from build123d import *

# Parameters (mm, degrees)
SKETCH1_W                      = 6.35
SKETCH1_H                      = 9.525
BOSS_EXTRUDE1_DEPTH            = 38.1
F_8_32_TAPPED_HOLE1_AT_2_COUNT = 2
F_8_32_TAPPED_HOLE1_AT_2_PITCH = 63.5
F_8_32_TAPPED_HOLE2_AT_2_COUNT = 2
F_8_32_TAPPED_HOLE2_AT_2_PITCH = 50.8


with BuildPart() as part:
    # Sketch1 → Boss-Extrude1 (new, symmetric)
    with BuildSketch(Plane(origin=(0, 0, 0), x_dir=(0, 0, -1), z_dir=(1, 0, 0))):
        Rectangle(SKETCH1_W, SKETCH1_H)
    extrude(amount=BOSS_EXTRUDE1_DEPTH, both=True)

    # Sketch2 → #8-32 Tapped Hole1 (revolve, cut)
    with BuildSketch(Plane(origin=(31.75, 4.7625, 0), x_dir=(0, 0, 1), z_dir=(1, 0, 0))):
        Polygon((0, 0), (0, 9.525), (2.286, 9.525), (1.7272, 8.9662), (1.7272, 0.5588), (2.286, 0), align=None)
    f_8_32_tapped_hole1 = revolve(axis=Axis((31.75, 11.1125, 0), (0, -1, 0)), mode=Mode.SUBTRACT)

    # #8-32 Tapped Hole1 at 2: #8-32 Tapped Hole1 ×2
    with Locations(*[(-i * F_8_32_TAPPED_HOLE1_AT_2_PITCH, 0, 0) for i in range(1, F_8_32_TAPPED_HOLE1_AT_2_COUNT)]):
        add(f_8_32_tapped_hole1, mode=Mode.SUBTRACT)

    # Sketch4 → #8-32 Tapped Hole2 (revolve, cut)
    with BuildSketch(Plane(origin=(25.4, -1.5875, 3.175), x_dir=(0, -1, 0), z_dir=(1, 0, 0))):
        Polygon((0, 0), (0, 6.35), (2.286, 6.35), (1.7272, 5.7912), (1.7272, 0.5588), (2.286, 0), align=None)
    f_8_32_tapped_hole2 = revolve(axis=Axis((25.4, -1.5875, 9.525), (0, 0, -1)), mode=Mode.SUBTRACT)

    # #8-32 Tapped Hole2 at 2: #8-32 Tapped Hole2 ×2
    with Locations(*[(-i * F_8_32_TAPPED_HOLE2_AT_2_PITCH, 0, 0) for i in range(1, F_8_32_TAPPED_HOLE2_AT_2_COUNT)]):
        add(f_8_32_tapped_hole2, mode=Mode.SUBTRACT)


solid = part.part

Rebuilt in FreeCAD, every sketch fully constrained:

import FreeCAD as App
import Part
import Sketcher
from FreeCAD import Vector
Q = App.Units.Quantity

doc = App.newDocument("Part")
body = doc.addObject("PartDesign::Body", "Body")

# Sketch on YZ plane
sketch1 = doc.addObject("Sketcher::SketchObject", "Sketch")
body.addObject(sketch1)
sketch1.AttachmentSupport = (doc.YZ_Plane, [""])
sketch1.MapMode = "FlatFace"
sketch1.addGeometry(Part.LineSegment(Vector(5, 3, 0), Vector(-5, 3, 0)), False)
sketch1.addGeometry(Part.LineSegment(Vector(-5, 3, 0), Vector(-5, -3, 0)), False)
sketch1.addGeometry(Part.LineSegment(Vector(-5, -3, 0), Vector(5, -3, 0)), False)
sketch1.addGeometry(Part.LineSegment(Vector(5, -3, 0), Vector(5, 3, 0)), False)
sketch1.addConstraint(Sketcher.Constraint("Coincident", 0, 2, 1, 1))
sketch1.addConstraint(Sketcher.Constraint("Coincident", 1, 2, 2, 1))
sketch1.addConstraint(Sketcher.Constraint("Coincident", 2, 2, 3, 1))
sketch1.addConstraint(Sketcher.Constraint("Coincident", 3, 2, 0, 1))
sketch1.addConstraint(Sketcher.Constraint("Horizontal", 0))
sketch1.addConstraint(Sketcher.Constraint("Vertical", 1))
sketch1.addConstraint(Sketcher.Constraint("Horizontal", 2))
sketch1.addConstraint(Sketcher.Constraint("Vertical", 3))
sketch1.addConstraint(Sketcher.Constraint("Symmetric", 0, 2, 2, 2, -1, 1))
sketch1.addConstraint(Sketcher.Constraint("DistanceY", 1, 2, 1, 1, Q("0.25 in")))
sketch1.addConstraint(Sketcher.Constraint("DistanceX", 0, 2, 0, 1, Q("0.375 in")))
pad1 = doc.addObject("PartDesign::Pad", "Pad")
body.addObject(pad1)
pad1.Profile = sketch1
pad1.Length = Q("3 in")
pad1.Midplane = True

# Sketch on YZ plane
sketch2 = doc.addObject("Sketcher::SketchObject", "Sketch001")
body.addObject(sketch2)
sketch2.AttachmentSupport = (doc.YZ_Plane, [""])
sketch2.MapMode = "FlatFace"
sketch2.AttachmentOffset = App.Placement(Vector(0, 0, 1.25 * 25.4), App.Rotation())
sketch2.addGeometry(Part.LineSegment(Vector(-4.8, 0, 0), Vector(4.8, 0, 0)), False)
sketch2.addGeometry(Part.LineSegment(Vector(4.8, 0, 0), Vector(4.8, 2.3, 0)), False)
sketch2.addGeometry(Part.LineSegment(Vector(4.8, 2.3, 0), Vector(4.2, 1.7, 0)), False)
sketch2.addGeometry(Part.LineSegment(Vector(4.2, 1.7, 0), Vector(-4.2, 1.7, 0)), False)
sketch2.addGeometry(Part.LineSegment(Vector(-4.2, 1.7, 0), Vector(-4.8, 2.3, 0)), False)
sketch2.addGeometry(Part.LineSegment(Vector(-4.8, 2.3, 0), Vector(-4.8, 0, 0)), False)
sketch2.addConstraint(Sketcher.Constraint("Coincident", 0, 2, 1, 1))
sketch2.addConstraint(Sketcher.Constraint("Coincident", 1, 2, 2, 1))
sketch2.addConstraint(Sketcher.Constraint("Coincident", 2, 2, 3, 1))
sketch2.addConstraint(Sketcher.Constraint("Coincident", 3, 2, 4, 1))
sketch2.addConstraint(Sketcher.Constraint("Coincident", 4, 2, 5, 1))
sketch2.addConstraint(Sketcher.Constraint("Coincident", 5, 2, 0, 1))
sketch2.addConstraint(Sketcher.Constraint("Horizontal", 0))
sketch2.addConstraint(Sketcher.Constraint("Vertical", 1))
sketch2.addConstraint(Sketcher.Constraint("Horizontal", 3))
sketch2.addConstraint(Sketcher.Constraint("Vertical", 5))
sketch2.addConstraint(Sketcher.Constraint("Symmetric", 0, 2, 5, 2, -1, 1))
sketch2.addConstraint(Sketcher.Constraint("Perpendicular", 2, 4))
sketch2.addConstraint(Sketcher.Constraint("Horizontal", 1, 2, 4, 2))
sketch2.addConstraint(Sketcher.Constraint("Equal", 2, 4))
sketch2.addConstraint(Sketcher.Constraint("DistanceY", 1, 1, 1, 2, Q("0.09 in")))
sketch2.addConstraint(Sketcher.Constraint("DistanceX", 0, 1, 0, 2, Q("0.375 in")))
sketch2.addConstraint(Sketcher.Constraint("DistanceX", 3, 2, 3, 1, Q("0.331 in")))
groove = doc.addObject("PartDesign::Groove", "Groove")
body.addObject(groove)
groove.Profile = sketch2
groove.ReferenceAxis = (sketch2, ["H_Axis"])
groove.Angle = 360
doc.recompute()

linearpattern = doc.addObject("PartDesign::LinearPattern", "LinearPattern")
body.addObject(linearpattern)
linearpattern.Originals = [groove]
linearpattern.Direction = (doc.X_Axis, [""])
linearpattern.Mode = "offset"
linearpattern.Offset = Q("2.5 in")
linearpattern.Occurrences = 2
linearpattern.Reversed = True
body.Tip = linearpattern

# Sketch on YZ plane
sketch3 = doc.addObject("Sketcher::SketchObject", "Sketch002")
body.addObject(sketch3)
sketch3.AttachmentSupport = (doc.YZ_Plane, [""])
sketch3.MapMode = "FlatFace"
sketch3.AttachmentOffset = App.Placement(Vector(0, 0, 1 * 25.4), App.Rotation())
sketch3.addGeometry(Part.LineSegment(Vector(-1.6, -3.2, 0), Vector(-1.6, 3.2, 0)), False)
sketch3.addGeometry(Part.LineSegment(Vector(-1.6, 3.2, 0), Vector(-3.9, 3.2, 0)), False)
sketch3.addGeometry(Part.LineSegment(Vector(-3.9, 3.2, 0), Vector(-3.3, 2.6, 0)), False)
sketch3.addGeometry(Part.LineSegment(Vector(-3.3, 2.6, 0), Vector(-3.3, -2.6, 0)), False)
sketch3.addGeometry(Part.LineSegment(Vector(-3.3, -2.6, 0), Vector(-3.9, -3.2, 0)), False)
sketch3.addGeometry(Part.LineSegment(Vector(-3.9, -3.2, 0), Vector(-1.6, -3.2, 0)), False)
sketch3.addGeometry(Part.LineSegment(Vector(-1.6, 3.2, 0), Vector(-1.6, -3.2, 0)), True)  # axis
sketch3.addConstraint(Sketcher.Constraint("Coincident", 0, 2, 1, 1))
sketch3.addConstraint(Sketcher.Constraint("Coincident", 1, 2, 2, 1))
sketch3.addConstraint(Sketcher.Constraint("Coincident", 2, 2, 3, 1))
sketch3.addConstraint(Sketcher.Constraint("Coincident", 3, 2, 4, 1))
sketch3.addConstraint(Sketcher.Constraint("Coincident", 4, 2, 5, 1))
sketch3.addConstraint(Sketcher.Constraint("Coincident", 5, 2, 0, 1))
sketch3.addConstraint(Sketcher.Constraint("Vertical", 0))
sketch3.addConstraint(Sketcher.Constraint("Horizontal", 1))
sketch3.addConstraint(Sketcher.Constraint("Vertical", 3))
sketch3.addConstraint(Sketcher.Constraint("Horizontal", 5))
sketch3.addConstraint(Sketcher.Constraint("Vertical", 6))
sketch3.addConstraint(Sketcher.Constraint("Coincident", 6, 1, 0, 2))
sketch3.addConstraint(Sketcher.Constraint("Symmetric", 1, 2, 4, 2, -1))
sketch3.addConstraint(Sketcher.Constraint("Perpendicular", 2, 4))
sketch3.addConstraint(Sketcher.Constraint("Horizontal", 4, 2, 6, 2))
sketch3.addConstraint(Sketcher.Constraint("Equal", 2, 4))
sketch3.addConstraint(Sketcher.Constraint("DistanceX", 1, 2, 1, 1, Q("0.09 in")))
sketch3.addConstraint(Sketcher.Constraint("DistanceY", 0, 1, 0, 2, Q("0.25 in")))
sketch3.addConstraint(Sketcher.Constraint("DistanceY", 3, 2, 3, 1, Q("0.206 in")))
sketch3.addConstraint(Sketcher.Constraint("DistanceX", 0, 2, -1, 1, Q("0.0625 in")))
groove2 = doc.addObject("PartDesign::Groove", "Groove001")
body.addObject(groove2)
groove2.Profile = sketch3
groove2.ReferenceAxis = (sketch3, ["Axis0"])
groove2.Angle = 360
doc.recompute()

linearpattern2 = doc.addObject("PartDesign::LinearPattern", "LinearPattern001")
body.addObject(linearpattern2)
linearpattern2.Originals = [groove2]
linearpattern2.Direction = (doc.X_Axis, [""])
linearpattern2.Mode = "offset"
linearpattern2.Offset = Q("2 in")
linearpattern2.Occurrences = 2
linearpattern2.Reversed = True
body.Tip = linearpattern2

doc.recompute()
